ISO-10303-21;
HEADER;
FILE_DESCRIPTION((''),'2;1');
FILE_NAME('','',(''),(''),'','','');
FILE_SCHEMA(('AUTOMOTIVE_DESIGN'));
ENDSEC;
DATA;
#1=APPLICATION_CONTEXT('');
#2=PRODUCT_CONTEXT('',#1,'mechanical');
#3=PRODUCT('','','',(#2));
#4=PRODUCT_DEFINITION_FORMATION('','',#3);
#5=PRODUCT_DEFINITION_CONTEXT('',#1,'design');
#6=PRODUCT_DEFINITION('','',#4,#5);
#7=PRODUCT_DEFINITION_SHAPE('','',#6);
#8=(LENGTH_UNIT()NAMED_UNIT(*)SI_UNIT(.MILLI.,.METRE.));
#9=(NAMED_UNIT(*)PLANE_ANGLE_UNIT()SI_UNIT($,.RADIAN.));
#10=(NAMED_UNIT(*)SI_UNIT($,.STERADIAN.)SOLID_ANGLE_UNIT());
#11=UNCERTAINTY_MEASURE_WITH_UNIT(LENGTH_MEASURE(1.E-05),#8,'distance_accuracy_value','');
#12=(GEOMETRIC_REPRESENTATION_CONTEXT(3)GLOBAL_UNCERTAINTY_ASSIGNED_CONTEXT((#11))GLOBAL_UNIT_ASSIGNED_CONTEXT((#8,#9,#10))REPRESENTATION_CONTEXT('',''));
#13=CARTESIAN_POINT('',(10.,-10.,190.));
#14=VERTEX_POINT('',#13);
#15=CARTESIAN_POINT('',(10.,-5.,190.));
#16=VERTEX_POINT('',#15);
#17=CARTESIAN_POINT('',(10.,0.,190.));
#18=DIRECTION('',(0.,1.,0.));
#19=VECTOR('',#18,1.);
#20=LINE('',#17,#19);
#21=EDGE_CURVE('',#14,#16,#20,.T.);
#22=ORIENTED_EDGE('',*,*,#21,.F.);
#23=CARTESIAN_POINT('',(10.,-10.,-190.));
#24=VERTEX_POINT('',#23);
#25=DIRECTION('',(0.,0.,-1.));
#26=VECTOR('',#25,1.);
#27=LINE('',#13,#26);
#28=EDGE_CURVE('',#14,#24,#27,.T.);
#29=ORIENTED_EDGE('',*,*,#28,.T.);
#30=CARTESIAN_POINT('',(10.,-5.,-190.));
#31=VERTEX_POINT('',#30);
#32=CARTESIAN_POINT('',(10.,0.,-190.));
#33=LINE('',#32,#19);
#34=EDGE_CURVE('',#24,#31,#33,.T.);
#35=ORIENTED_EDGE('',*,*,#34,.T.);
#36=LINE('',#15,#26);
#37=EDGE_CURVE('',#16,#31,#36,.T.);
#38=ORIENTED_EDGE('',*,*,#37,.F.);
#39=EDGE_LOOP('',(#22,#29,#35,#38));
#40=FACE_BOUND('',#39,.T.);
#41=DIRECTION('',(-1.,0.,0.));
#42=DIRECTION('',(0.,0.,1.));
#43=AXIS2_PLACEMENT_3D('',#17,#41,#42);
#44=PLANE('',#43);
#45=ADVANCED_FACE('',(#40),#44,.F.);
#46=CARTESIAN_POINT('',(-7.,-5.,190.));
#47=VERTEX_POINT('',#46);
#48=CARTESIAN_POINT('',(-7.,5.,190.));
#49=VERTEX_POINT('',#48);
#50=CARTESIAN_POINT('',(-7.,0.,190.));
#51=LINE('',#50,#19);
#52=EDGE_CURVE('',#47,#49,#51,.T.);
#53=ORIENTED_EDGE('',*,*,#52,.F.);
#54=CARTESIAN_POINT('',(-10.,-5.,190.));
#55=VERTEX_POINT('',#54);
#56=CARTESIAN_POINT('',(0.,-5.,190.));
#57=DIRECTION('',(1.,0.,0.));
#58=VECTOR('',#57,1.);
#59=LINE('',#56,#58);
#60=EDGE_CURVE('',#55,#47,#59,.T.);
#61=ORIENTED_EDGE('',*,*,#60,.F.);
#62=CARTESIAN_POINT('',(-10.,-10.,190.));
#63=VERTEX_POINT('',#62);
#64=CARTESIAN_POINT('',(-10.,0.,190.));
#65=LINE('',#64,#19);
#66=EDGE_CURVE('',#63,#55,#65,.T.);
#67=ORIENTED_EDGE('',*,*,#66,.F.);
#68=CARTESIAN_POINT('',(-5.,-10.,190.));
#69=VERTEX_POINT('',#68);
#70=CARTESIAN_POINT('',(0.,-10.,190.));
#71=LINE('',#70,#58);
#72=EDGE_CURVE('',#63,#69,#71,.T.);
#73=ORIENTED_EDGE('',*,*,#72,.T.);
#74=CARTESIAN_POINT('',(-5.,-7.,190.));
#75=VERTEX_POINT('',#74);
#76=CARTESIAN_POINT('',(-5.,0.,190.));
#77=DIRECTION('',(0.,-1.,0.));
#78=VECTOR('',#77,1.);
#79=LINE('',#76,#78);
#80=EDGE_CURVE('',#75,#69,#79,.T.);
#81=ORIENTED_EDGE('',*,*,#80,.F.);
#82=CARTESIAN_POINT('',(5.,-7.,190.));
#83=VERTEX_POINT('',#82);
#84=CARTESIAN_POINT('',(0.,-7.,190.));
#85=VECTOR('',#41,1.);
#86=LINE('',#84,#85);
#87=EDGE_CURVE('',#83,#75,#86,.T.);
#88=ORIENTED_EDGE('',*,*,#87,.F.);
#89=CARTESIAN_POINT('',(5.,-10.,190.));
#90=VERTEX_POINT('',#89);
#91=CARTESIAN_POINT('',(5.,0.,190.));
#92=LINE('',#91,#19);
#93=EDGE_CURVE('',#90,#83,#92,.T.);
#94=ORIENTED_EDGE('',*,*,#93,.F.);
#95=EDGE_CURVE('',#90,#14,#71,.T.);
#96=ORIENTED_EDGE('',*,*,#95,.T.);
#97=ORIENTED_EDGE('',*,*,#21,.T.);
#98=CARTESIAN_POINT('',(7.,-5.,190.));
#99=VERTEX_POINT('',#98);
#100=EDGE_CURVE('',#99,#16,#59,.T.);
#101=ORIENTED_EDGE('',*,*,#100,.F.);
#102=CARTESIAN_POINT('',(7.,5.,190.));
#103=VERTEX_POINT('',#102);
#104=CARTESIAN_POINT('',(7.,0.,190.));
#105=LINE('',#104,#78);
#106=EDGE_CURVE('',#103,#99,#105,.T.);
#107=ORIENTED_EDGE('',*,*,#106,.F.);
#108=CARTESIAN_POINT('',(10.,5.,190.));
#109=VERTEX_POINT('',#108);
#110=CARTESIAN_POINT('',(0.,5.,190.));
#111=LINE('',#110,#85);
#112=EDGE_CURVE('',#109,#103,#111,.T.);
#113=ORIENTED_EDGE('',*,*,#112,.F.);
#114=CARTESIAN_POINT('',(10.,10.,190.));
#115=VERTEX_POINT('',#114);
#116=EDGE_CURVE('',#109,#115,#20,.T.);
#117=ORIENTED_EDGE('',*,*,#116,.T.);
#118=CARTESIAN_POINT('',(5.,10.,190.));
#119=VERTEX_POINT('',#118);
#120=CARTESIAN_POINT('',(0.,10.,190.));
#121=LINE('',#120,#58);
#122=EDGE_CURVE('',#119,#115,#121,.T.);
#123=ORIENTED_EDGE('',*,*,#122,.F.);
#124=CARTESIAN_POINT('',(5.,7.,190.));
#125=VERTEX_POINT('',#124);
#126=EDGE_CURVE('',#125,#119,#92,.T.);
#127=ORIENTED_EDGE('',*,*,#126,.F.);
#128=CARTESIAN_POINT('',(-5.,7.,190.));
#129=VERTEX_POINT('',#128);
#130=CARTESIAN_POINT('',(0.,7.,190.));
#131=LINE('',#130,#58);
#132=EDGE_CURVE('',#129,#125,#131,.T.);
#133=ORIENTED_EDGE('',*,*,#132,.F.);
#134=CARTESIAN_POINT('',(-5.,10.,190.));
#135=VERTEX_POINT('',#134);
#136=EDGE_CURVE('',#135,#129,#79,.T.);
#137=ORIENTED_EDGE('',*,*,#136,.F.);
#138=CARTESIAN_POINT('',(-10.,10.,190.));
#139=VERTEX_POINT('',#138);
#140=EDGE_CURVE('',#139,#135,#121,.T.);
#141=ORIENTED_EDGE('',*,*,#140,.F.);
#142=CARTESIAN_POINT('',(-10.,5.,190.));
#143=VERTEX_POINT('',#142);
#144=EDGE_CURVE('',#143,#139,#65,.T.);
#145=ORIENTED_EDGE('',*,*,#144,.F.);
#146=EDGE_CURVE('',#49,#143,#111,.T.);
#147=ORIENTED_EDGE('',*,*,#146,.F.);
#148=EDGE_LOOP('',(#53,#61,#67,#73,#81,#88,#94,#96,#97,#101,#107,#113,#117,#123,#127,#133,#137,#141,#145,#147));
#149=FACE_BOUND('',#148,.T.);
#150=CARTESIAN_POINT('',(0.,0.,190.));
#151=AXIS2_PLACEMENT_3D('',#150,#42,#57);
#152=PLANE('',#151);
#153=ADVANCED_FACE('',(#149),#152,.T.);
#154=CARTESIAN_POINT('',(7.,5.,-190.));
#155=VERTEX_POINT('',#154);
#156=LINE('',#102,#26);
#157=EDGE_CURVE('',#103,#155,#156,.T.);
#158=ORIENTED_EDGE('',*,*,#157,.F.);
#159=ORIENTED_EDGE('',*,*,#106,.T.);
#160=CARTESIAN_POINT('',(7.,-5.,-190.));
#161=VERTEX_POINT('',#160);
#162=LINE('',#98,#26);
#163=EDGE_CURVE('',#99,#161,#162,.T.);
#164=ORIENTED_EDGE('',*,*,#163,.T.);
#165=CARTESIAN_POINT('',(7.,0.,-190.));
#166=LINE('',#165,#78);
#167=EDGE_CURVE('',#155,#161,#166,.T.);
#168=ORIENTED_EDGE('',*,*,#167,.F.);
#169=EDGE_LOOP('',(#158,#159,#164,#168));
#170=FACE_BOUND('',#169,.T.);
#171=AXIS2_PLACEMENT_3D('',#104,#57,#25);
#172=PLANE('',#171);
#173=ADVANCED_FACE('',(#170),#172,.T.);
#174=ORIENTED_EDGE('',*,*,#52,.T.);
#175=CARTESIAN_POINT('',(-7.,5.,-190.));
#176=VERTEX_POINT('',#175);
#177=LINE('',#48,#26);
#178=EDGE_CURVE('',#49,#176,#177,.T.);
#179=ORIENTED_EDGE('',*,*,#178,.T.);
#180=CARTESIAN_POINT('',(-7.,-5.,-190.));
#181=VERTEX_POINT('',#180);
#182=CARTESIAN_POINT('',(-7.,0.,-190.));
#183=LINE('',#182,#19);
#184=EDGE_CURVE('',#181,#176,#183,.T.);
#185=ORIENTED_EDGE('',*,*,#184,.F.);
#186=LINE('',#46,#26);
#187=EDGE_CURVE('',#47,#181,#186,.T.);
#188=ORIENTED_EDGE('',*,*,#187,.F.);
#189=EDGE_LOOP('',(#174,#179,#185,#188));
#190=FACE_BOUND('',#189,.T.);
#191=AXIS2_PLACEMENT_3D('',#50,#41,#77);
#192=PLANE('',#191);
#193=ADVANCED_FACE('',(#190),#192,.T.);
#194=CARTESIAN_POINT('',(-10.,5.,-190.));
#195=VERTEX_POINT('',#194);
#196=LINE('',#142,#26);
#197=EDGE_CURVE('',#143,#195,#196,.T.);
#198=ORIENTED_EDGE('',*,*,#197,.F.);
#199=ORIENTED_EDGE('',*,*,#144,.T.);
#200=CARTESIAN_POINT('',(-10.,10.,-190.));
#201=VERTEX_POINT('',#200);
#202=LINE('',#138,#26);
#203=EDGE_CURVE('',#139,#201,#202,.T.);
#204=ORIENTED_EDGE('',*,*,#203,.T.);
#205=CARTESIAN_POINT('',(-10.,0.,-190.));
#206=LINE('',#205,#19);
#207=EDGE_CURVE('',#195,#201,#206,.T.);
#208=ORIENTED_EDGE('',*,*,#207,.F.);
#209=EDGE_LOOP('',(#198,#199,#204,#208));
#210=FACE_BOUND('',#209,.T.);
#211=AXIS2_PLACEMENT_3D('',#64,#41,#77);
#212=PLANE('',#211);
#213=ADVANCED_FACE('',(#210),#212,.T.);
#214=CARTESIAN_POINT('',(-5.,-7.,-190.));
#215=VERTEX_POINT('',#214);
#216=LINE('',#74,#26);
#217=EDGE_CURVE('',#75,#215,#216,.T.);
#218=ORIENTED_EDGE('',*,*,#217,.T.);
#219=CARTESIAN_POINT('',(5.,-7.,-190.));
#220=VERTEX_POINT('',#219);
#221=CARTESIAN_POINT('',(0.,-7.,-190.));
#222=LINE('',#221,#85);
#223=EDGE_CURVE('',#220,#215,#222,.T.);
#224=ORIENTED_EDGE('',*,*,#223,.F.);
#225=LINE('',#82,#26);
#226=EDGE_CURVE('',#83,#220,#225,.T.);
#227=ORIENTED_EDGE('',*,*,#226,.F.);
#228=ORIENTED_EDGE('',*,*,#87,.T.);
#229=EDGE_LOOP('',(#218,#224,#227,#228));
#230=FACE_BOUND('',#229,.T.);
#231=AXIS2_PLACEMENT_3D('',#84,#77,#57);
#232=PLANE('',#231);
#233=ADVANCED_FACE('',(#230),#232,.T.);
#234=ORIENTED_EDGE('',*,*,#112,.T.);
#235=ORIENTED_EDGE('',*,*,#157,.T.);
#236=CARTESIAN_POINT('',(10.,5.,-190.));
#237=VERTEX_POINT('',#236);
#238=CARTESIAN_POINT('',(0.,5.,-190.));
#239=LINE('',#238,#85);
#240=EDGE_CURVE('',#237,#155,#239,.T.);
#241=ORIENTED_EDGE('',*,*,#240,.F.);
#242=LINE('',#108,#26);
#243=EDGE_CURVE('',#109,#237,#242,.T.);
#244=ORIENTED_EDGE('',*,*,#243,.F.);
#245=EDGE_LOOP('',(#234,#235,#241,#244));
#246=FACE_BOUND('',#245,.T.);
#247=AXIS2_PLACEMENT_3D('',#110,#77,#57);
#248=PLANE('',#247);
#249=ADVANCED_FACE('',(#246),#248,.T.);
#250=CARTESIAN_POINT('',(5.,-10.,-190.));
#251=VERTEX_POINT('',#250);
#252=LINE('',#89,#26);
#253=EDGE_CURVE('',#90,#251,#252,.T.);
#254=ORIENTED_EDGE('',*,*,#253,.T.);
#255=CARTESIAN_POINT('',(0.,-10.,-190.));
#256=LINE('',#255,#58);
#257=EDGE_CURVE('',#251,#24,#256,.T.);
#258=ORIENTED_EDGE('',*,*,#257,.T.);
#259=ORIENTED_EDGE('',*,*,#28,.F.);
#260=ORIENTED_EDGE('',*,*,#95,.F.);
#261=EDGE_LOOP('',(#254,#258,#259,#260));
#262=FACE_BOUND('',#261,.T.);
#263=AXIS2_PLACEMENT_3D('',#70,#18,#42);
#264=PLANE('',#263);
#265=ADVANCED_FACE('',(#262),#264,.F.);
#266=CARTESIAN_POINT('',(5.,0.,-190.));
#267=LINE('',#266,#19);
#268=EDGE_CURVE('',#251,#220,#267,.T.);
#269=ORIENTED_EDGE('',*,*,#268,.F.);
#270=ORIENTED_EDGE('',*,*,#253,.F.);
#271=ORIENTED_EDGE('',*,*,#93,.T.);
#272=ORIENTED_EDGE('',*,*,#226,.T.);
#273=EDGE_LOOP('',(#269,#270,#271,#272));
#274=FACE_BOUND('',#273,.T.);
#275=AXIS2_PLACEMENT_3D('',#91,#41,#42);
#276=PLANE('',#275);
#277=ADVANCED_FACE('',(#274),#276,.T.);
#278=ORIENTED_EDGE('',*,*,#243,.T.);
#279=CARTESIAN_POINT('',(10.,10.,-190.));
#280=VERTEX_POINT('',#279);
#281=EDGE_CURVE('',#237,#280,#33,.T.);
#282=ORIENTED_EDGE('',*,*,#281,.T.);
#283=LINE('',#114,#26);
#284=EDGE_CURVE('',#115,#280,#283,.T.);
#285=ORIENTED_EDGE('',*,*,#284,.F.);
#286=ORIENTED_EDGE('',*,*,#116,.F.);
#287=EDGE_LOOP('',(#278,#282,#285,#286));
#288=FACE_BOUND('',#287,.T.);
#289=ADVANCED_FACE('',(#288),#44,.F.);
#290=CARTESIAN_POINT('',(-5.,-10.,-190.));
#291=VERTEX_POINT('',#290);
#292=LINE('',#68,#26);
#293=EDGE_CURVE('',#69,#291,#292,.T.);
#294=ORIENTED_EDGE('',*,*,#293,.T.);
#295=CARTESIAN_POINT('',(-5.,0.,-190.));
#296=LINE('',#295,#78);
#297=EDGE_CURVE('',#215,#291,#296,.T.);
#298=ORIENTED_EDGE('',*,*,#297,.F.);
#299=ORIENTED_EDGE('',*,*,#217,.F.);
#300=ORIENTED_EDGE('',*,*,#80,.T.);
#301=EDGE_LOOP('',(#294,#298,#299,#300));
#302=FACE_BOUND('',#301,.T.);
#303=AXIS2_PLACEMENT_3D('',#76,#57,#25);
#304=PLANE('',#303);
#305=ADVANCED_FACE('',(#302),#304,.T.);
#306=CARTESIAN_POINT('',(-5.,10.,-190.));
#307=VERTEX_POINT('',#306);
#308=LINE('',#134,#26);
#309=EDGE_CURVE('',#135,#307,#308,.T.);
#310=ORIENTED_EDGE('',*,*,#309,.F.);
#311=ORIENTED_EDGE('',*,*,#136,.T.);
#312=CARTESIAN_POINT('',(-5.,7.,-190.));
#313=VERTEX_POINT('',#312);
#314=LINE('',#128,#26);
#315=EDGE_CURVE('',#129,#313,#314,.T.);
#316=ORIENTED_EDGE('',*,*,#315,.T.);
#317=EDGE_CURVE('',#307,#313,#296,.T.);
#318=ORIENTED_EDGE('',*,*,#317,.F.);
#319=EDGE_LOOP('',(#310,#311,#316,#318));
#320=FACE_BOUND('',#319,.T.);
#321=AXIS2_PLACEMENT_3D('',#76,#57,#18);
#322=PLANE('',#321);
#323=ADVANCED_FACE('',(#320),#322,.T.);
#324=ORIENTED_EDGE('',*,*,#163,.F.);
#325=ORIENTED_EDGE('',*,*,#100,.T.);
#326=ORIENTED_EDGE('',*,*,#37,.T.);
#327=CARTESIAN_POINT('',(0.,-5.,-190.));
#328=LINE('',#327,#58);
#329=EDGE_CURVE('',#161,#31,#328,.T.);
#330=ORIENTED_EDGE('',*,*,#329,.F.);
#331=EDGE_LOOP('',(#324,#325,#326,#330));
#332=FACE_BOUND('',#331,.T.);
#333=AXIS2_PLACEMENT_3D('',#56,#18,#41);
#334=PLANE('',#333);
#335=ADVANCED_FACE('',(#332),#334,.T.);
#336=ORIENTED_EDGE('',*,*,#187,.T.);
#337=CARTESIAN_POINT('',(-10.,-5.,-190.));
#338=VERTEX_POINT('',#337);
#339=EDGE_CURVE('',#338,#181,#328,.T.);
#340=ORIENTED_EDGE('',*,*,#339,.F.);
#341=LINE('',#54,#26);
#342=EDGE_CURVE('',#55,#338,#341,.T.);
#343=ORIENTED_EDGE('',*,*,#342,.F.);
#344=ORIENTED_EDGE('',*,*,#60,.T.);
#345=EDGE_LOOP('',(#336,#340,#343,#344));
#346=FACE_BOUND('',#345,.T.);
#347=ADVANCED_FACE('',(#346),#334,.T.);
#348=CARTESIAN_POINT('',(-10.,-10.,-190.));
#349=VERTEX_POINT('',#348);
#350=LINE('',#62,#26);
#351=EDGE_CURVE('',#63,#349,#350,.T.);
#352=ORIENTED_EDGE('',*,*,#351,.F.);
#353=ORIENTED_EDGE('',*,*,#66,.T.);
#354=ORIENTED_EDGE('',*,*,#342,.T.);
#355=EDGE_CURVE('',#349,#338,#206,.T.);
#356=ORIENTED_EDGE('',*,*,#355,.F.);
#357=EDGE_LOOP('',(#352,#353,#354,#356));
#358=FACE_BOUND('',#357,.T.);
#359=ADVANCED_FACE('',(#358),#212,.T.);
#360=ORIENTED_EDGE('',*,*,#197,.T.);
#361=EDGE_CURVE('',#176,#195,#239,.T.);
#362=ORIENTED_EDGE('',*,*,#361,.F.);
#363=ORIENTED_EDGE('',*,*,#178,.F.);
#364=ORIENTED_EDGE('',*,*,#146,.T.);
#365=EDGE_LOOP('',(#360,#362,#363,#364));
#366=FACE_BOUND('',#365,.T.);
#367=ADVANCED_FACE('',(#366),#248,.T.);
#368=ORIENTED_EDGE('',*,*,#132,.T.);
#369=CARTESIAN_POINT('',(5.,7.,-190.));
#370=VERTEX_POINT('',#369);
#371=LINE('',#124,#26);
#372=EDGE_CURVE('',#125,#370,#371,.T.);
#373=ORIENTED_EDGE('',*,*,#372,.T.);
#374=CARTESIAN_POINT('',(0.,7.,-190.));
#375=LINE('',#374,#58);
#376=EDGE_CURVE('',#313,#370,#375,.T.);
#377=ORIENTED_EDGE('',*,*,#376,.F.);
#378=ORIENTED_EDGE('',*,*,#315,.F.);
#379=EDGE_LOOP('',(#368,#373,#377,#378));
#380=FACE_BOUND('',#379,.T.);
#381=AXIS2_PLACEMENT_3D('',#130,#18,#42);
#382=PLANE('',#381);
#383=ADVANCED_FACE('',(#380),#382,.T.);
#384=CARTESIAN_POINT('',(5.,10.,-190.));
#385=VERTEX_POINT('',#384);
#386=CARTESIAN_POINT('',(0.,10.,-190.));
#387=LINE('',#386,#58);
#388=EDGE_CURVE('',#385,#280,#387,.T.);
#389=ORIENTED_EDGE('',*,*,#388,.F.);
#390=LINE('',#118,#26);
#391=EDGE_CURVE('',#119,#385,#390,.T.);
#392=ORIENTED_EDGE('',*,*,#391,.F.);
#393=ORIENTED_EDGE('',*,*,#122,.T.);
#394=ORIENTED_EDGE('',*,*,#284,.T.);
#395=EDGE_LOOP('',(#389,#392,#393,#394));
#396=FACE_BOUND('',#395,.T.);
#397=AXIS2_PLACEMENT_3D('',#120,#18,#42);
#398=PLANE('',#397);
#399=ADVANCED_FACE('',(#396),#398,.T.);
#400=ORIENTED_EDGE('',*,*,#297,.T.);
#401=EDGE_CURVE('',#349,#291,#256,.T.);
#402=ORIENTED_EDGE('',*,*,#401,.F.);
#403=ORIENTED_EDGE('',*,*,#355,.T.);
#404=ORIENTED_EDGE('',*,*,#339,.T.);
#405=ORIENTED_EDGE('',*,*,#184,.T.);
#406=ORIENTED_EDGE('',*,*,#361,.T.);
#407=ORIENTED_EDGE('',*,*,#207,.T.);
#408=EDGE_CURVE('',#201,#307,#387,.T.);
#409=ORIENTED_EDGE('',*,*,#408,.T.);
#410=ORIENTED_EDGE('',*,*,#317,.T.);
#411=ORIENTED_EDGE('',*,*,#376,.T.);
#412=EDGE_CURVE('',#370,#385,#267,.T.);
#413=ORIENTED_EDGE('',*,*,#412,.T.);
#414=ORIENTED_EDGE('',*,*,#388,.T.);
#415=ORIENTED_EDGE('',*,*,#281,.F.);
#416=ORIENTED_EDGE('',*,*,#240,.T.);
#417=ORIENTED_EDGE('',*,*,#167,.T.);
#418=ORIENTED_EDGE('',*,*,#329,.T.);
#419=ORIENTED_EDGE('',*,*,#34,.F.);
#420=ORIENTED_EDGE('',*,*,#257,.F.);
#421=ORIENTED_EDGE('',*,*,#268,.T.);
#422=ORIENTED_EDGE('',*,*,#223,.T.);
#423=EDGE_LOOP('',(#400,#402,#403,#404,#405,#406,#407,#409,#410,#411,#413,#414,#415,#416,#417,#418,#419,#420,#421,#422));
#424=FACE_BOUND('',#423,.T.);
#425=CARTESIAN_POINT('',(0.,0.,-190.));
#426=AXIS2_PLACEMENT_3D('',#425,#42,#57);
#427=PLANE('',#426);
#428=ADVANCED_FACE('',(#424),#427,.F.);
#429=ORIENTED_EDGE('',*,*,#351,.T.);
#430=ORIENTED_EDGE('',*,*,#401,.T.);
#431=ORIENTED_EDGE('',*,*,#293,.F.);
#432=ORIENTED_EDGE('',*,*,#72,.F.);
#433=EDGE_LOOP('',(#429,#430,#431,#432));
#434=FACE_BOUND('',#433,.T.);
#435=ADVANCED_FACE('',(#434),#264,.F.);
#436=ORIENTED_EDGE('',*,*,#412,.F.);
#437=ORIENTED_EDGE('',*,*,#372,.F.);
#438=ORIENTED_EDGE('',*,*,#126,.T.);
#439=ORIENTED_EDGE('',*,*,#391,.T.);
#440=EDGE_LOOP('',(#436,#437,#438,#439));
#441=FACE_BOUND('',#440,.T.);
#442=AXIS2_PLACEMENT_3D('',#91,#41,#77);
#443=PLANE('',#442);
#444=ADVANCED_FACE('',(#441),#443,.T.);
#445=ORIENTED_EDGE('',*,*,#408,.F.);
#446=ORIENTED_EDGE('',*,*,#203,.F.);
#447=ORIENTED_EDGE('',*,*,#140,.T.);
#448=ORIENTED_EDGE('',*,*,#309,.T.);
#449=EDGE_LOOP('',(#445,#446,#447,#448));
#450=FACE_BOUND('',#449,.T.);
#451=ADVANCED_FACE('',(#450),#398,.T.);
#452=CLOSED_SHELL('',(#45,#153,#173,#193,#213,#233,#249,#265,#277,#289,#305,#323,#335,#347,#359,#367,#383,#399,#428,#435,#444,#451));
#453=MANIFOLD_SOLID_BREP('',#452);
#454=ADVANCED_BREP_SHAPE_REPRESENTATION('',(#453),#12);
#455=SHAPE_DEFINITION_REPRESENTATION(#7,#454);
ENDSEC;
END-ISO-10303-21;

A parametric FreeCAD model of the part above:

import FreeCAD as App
import Part
import Sketcher
from FreeCAD import Vector

doc = App.newDocument("Part")
body = doc.addObject("PartDesign::Body", "Body")

# Sketch on XY plane
sketch1 = doc.addObject("Sketcher::SketchObject", "Sketch")
body.addObject(sketch1)
sketch1.AttachmentSupport = (doc.XY_Plane, [""])
sketch1.MapMode = "FlatFace"
sketch1.addGeometry(Part.LineSegment(Vector(-5, 7, 0), Vector(-5, 10, 0)), False)
sketch1.addGeometry(Part.LineSegment(Vector(-5, 10, 0), Vector(-10, 10, 0)), False)
sketch1.addGeometry(Part.LineSegment(Vector(-10, 10, 0), Vector(-10, 5, 0)), False)
sketch1.addGeometry(Part.LineSegment(Vector(-10, 5, 0), Vector(-7, 5, 0)), False)
sketch1.addGeometry(Part.LineSegment(Vector(-7, 5, 0), Vector(-7, -5, 0)), False)
sketch1.addGeometry(Part.LineSegment(Vector(-7, -5, 0), Vector(-10, -5, 0)), False)
sketch1.addGeometry(Part.LineSegment(Vector(-10, -5, 0), Vector(-10, -10, 0)), False)
sketch1.addGeometry(Part.LineSegment(Vector(-10, -10, 0), Vector(-5, -10, 0)), False)
sketch1.addGeometry(Part.LineSegment(Vector(-5, -10, 0), Vector(-5, -7, 0)), False)
sketch1.addGeometry(Part.LineSegment(Vector(-5, -7, 0), Vector(5, -7, 0)), False)
sketch1.addGeometry(Part.LineSegment(Vector(5, -7, 0), Vector(5, -10, 0)), False)
sketch1.addGeometry(Part.LineSegment(Vector(5, -10, 0), Vector(10, -10, 0)), False)
sketch1.addGeometry(Part.LineSegment(Vector(10, -10, 0), Vector(10, -5, 0)), False)
sketch1.addGeometry(Part.LineSegment(Vector(10, -5, 0), Vector(7, -5, 0)), False)
sketch1.addGeometry(Part.LineSegment(Vector(7, -5, 0), Vector(7, 5, 0)), False)
sketch1.addGeometry(Part.LineSegment(Vector(7, 5, 0), Vector(10, 5, 0)), False)
sketch1.addGeometry(Part.LineSegment(Vector(10, 5, 0), Vector(10, 10, 0)), False)
sketch1.addGeometry(Part.LineSegment(Vector(10, 10, 0), Vector(5, 10, 0)), False)
sketch1.addGeometry(Part.LineSegment(Vector(5, 10, 0), Vector(5, 7, 0)), False)
sketch1.addGeometry(Part.LineSegment(Vector(5, 7, 0), Vector(-5, 7, 0)), False)
sketch1.addConstraint(Sketcher.Constraint("Coincident", 0, 2, 1, 1))
sketch1.addConstraint(Sketcher.Constraint("Coincident", 1, 2, 2, 1))
sketch1.addConstraint(Sketcher.Constraint("Coincident", 2, 2, 3, 1))
sketch1.addConstraint(Sketcher.Constraint("Coincident", 3, 2, 4, 1))
sketch1.addConstraint(Sketcher.Constraint("Coincident", 4, 2, 5, 1))
sketch1.addConstraint(Sketcher.Constraint("Coincident", 5, 2, 6, 1))
sketch1.addConstraint(Sketcher.Constraint("Coincident", 6, 2, 7, 1))
sketch1.addConstraint(Sketcher.Constraint("Coincident", 7, 2, 8, 1))
sketch1.addConstraint(Sketcher.Constraint("Coincident", 8, 2, 9, 1))
sketch1.addConstraint(Sketcher.Constraint("Coincident", 9, 2, 10, 1))
sketch1.addConstraint(Sketcher.Constraint("Coincident", 10, 2, 11, 1))
sketch1.addConstraint(Sketcher.Constraint("Coincident", 11, 2, 12, 1))
sketch1.addConstraint(Sketcher.Constraint("Coincident", 12, 2, 13, 1))
sketch1.addConstraint(Sketcher.Constraint("Coincident", 13, 2, 14, 1))
sketch1.addConstraint(Sketcher.Constraint("Coincident", 14, 2, 15, 1))
sketch1.addConstraint(Sketcher.Constraint("Coincident", 15, 2, 16, 1))
sketch1.addConstraint(Sketcher.Constraint("Coincident", 16, 2, 17, 1))
sketch1.addConstraint(Sketcher.Constraint("Coincident", 17, 2, 18, 1))
sketch1.addConstraint(Sketcher.Constraint("Coincident", 18, 2, 19, 1))
sketch1.addConstraint(Sketcher.Constraint("Coincident", 19, 2, 0, 1))
sketch1.addConstraint(Sketcher.Constraint("Vertical", 0))
sketch1.addConstraint(Sketcher.Constraint("Horizontal", 1))
sketch1.addConstraint(Sketcher.Constraint("Vertical", 2))
sketch1.addConstraint(Sketcher.Constraint("Horizontal", 3))
sketch1.addConstraint(Sketcher.Constraint("Vertical", 4))
sketch1.addConstraint(Sketcher.Constraint("Horizontal", 5))
sketch1.addConstraint(Sketcher.Constraint("Vertical", 6))
sketch1.addConstraint(Sketcher.Constraint("Horizontal", 7))
sketch1.addConstraint(Sketcher.Constraint("Vertical", 8))
sketch1.addConstraint(Sketcher.Constraint("Horizontal", 9))
sketch1.addConstraint(Sketcher.Constraint("Vertical", 10))
sketch1.addConstraint(Sketcher.Constraint("Horizontal", 11))
sketch1.addConstraint(Sketcher.Constraint("Vertical", 12))
sketch1.addConstraint(Sketcher.Constraint("Horizontal", 13))
sketch1.addConstraint(Sketcher.Constraint("Vertical", 14))
sketch1.addConstraint(Sketcher.Constraint("Horizontal", 15))
sketch1.addConstraint(Sketcher.Constraint("Vertical", 16))
sketch1.addConstraint(Sketcher.Constraint("Horizontal", 17))
sketch1.addConstraint(Sketcher.Constraint("Vertical", 18))
sketch1.addConstraint(Sketcher.Constraint("Horizontal", 19))
sketch1.addConstraint(Sketcher.Constraint("Symmetric", 0, 2, 10, 2, -1, 1))
sketch1.addConstraint(Sketcher.Constraint("Symmetric", 2, 2, 12, 2, -1, 1))
sketch1.addConstraint(Sketcher.Constraint("Symmetric", 4, 2, 14, 2, -1, 1))
sketch1.addConstraint(Sketcher.Constraint("Symmetric", 6, 2, 16, 2, -1, 1))
sketch1.addConstraint(Sketcher.Constraint("Symmetric", 8, 2, 18, 2, -1, 1))
sketch1.addConstraint(Sketcher.Constraint("Symmetric", 7, 2, 10, 2, -2))
sketch1.addConstraint(Sketcher.Constraint("Symmetric", 5, 2, 12, 2, -2))
sketch1.addConstraint(Sketcher.Constraint("Equal", 15, 0))
sketch1.addConstraint(Sketcher.Constraint("Equal", 17, 2))
sketch1.addConstraint(Sketcher.Constraint("Equal", 19, 4))
sketch1.addConstraint(Sketcher.Constraint("DistanceX", 1, 2, 1, 1, 5.0))
sketch1.addConstraint(Sketcher.Constraint("DistanceX", 3, 1, 3, 2, 3.0))
sketch1.addConstraint(Sketcher.Constraint("DistanceX", 9, 1, 9, 2, 10.0))
pad1 = doc.addObject("PartDesign::Pad", "Pad")
body.addObject(pad1)
pad1.Profile = sketch1
pad1.Length = 380
pad1.Midplane = True

doc.recompute()
